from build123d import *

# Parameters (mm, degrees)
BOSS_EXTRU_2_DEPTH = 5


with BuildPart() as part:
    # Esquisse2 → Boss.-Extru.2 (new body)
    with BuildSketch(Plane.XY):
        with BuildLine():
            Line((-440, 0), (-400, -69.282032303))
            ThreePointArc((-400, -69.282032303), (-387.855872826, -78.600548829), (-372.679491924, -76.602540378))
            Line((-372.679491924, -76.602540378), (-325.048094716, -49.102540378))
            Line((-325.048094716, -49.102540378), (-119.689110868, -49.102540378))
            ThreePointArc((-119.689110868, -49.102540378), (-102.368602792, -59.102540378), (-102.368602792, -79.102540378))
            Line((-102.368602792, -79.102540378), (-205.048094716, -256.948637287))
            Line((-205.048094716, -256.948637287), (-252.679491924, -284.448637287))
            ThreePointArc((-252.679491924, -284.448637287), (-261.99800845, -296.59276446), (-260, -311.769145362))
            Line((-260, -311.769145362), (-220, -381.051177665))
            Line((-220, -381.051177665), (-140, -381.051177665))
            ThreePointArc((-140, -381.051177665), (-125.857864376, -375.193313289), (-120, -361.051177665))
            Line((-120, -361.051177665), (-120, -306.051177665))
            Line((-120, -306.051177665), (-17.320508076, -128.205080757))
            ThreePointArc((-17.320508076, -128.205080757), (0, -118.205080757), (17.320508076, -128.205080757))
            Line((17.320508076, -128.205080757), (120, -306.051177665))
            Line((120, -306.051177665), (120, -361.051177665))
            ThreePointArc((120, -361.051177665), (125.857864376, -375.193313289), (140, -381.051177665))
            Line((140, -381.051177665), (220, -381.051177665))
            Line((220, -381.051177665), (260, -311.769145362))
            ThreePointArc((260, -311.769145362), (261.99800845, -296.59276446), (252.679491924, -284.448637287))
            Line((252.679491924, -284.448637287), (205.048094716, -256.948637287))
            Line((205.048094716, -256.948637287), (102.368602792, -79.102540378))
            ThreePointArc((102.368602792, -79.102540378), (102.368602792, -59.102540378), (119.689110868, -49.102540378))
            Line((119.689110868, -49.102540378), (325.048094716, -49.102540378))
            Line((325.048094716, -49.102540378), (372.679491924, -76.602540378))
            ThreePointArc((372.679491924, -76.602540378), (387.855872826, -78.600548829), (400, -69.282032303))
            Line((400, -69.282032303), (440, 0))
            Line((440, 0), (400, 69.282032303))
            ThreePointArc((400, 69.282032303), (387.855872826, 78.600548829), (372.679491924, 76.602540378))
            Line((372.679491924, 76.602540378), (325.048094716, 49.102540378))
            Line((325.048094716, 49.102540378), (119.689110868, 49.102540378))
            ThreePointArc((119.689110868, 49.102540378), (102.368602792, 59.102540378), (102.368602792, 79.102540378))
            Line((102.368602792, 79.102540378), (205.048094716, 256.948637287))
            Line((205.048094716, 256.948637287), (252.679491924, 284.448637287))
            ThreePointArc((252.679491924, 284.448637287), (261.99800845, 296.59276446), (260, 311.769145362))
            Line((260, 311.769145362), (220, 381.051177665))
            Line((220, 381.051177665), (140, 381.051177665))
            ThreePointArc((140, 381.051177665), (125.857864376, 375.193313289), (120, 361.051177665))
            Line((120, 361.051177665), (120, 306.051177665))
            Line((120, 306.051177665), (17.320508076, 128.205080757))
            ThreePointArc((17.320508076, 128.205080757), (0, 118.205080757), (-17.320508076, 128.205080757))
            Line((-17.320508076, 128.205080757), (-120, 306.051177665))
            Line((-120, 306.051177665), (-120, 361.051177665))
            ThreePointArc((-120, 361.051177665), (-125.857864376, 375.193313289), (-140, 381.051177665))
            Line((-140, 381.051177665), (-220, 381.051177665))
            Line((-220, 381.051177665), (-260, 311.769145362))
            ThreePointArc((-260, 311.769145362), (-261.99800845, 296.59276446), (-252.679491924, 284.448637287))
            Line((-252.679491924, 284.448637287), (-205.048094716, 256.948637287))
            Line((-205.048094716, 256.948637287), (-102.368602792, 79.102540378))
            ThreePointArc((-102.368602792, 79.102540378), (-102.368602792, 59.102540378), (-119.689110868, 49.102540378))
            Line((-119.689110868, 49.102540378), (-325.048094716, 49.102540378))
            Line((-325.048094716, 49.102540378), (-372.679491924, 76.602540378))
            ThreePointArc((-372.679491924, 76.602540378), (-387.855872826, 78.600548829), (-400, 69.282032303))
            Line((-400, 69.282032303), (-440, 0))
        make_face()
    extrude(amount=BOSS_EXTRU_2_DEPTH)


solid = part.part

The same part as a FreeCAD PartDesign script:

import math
import FreeCAD as App
import Part
import Sketcher
Q = App.Units.Quantity

doc = App.newDocument("Part")
body = doc.addObject("PartDesign::Body", "Body")

sketch1 = body.newObject("Sketcher::SketchObject", "Sketch")
sketch1.AttachmentSupport = (doc.getObject("XY_Plane"), [""])
sketch1.MapMode = "FlatFace"
sketch1.addGeometry([
    Part.LineSegment(App.Vector(-440, 0, 0), App.Vector(-400, -69, 0)),
    Part.ArcOfCircle(Part.Circle(App.Vector(-383, -59, 0), App.Vector(0, 0, 1), 20), math.radians(-150), math.radians(-60)),
    Part.LineSegment(App.Vector(-373, -77, 0), App.Vector(-325, -49, 0)),
    Part.LineSegment(App.Vector(-325, -49, 0), App.Vector(-120, -49, 0)),
    Part.ArcOfCircle(Part.Circle(App.Vector(-120, -69, 0), App.Vector(0, 0, 1), 20), math.radians(-30), math.radians(90)),
    Part.LineSegment(App.Vector(-102, -79, 0), App.Vector(-205, -257, 0)),
    Part.LineSegment(App.Vector(-205, -257, 0), App.Vector(-253, -284, 0)),
    Part.ArcOfCircle(Part.Circle(App.Vector(-243, -302, 0), App.Vector(0, 0, 1), 20), math.radians(120), math.radians(210)),
    Part.LineSegment(App.Vector(-260, -312, 0), App.Vector(-220, -381, 0)),
    Part.LineSegment(App.Vector(-220, -381, 0), App.Vector(-140, -381, 0)),
    Part.ArcOfCircle(Part.Circle(App.Vector(-140, -361, 0), App.Vector(0, 0, 1), 20), math.radians(-90), math.radians(0)),
    Part.LineSegment(App.Vector(-120, -361, 0), App.Vector(-120, -306, 0)),
    Part.LineSegment(App.Vector(-120, -306, 0), App.Vector(-17, -128, 0)),
    Part.ArcOfCircle(Part.Circle(App.Vector(0, -138, 0), App.Vector(0, 0, 1), 20), math.radians(30), math.radians(150)),
    Part.LineSegment(App.Vector(17, -128, 0), App.Vector(120, -306, 0)),
    Part.LineSegment(App.Vector(120, -306, 0), App.Vector(120, -361, 0)),
    Part.ArcOfCircle(Part.Circle(App.Vector(140, -361, 0), App.Vector(0, 0, 1), 20), math.radians(180), math.radians(270)),
    Part.LineSegment(App.Vector(140, -381, 0), App.Vector(220, -381, 0)),
    Part.LineSegment(App.Vector(220, -381, 0), App.Vector(260, -312, 0)),
    Part.ArcOfCircle(Part.Circle(App.Vector(243, -302, 0), App.Vector(0, 0, 1), 20), math.radians(-30), math.radians(60)),
    Part.LineSegment(App.Vector(253, -284, 0), App.Vector(205, -257, 0)),
    Part.LineSegment(App.Vector(205, -257, 0), App.Vector(102, -79, 0)),
    Part.ArcOfCircle(Part.Circle(App.Vector(120, -69, 0), App.Vector(0, 0, 1), 20), math.radians(90), math.radians(210)),
    Part.LineSegment(App.Vector(120, -49, 0), App.Vector(325, -49, 0)),
    Part.LineSegment(App.Vector(325, -49, 0), App.Vector(373, -77, 0)),
    Part.ArcOfCircle(Part.Circle(App.Vector(383, -59, 0), App.Vector(0, 0, 1), 20), math.radians(-120), math.radians(-30)),
    Part.LineSegment(App.Vector(400, -69, 0), App.Vector(440, 0, 0)),
    Part.LineSegment(App.Vector(440, 0, 0), App.Vector(400, 69, 0)),
    Part.ArcOfCircle(Part.Circle(App.Vector(383, 59, 0), App.Vector(0, 0, 1), 20), math.radians(30), math.radians(120)),
    Part.LineSegment(App.Vector(373, 77, 0), App.Vector(325, 49, 0)),
    Part.LineSegment(App.Vector(325, 49, 0), App.Vector(120, 49, 0)),
    Part.ArcOfCircle(Part.Circle(App.Vector(120, 69, 0), App.Vector(0, 0, 1), 20), math.radians(150), math.radians(270)),
    Part.LineSegment(App.Vector(102, 79, 0), App.Vector(205, 257, 0)),
    Part.LineSegment(App.Vector(205, 257, 0), App.Vector(253, 284, 0)),
    Part.ArcOfCircle(Part.Circle(App.Vector(243, 302, 0), App.Vector(0, 0, 1), 20), math.radians(-60), math.radians(30)),
    Part.LineSegment(App.Vector(260, 312, 0), App.Vector(220, 381, 0)),
    Part.LineSegment(App.Vector(220, 381, 0), App.Vector(140, 381, 0)),
    Part.ArcOfCircle(Part.Circle(App.Vector(140, 361, 0), App.Vector(0, 0, 1), 20), math.radians(90), math.radians(180)),
    Part.LineSegment(App.Vector(120, 361, 0), App.Vector(120, 306, 0)),
    Part.LineSegment(App.Vector(120, 306, 0), App.Vector(17, 128, 0)),
    Part.ArcOfCircle(Part.Circle(App.Vector(0, 138, 0), App.Vector(0, 0, 1), 20), math.radians(-150), math.radians(-30)),
    Part.LineSegment(App.Vector(-17, 128, 0), App.Vector(-120, 306, 0)),
    Part.LineSegment(App.Vector(-120, 306, 0), App.Vector(-120, 361, 0)),
    Part.ArcOfCircle(Part.Circle(App.Vector(-140, 361, 0), App.Vector(0, 0, 1), 20), math.radians(0), math.radians(90)),
    Part.LineSegment(App.Vector(-140, 381, 0), App.Vector(-220, 381, 0)),
    Part.LineSegment(App.Vector(-220, 381, 0), App.Vector(-260, 312, 0)),
    Part.ArcOfCircle(Part.Circle(App.Vector(-243, 302, 0), App.Vector(0, 0, 1), 20), math.radians(150), math.radians(240)),
    Part.LineSegment(App.Vector(-253, 284, 0), App.Vector(-205, 257, 0)),
    Part.LineSegment(App.Vector(-205, 257, 0), App.Vector(-102, 79, 0)),
    Part.ArcOfCircle(Part.Circle(App.Vector(-120, 69, 0), App.Vector(0, 0, 1), 20), math.radians(-90), math.radians(30)),
    Part.LineSegment(App.Vector(-120, 49, 0), App.Vector(-325, 49, 0)),
    Part.LineSegment(App.Vector(-325, 49, 0), App.Vector(-373, 77, 0)),
    Part.ArcOfCircle(Part.Circle(App.Vector(-383, 59, 0), App.Vector(0, 0, 1), 20), math.radians(60), math.radians(150)),
    Part.LineSegment(App.Vector(-400, 69, 0), App.Vector(-440, 0, 0)),
], False)
sketch1.addConstraint([
    Sketcher.Constraint("Tangent", 0, 2, 1, 1),
    Sketcher.Constraint("Tangent", 1, 2, 2, 1),
    Sketcher.Constraint("Coincident", 2, 2, 3, 1),
    Sketcher.Constraint("Tangent", 3, 2, 4, 2),
    Sketcher.Constraint("Tangent", 4, 1, 5, 1),
    Sketcher.Constraint("Coincident", 5, 2, 6, 1),
    Sketcher.Constraint("Tangent", 6, 2, 7, 1),
    Sketcher.Constraint("Tangent", 7, 2, 8, 1),
    Sketcher.Constraint("Coincident", 8, 2, 9, 1),
    Sketcher.Constraint("Tangent", 9, 2, 10, 1),
    Sketcher.Constraint("Tangent", 10, 2, 11, 1),
    Sketcher.Constraint("Coincident", 11, 2, 12, 1),
    Sketcher.Constraint("Tangent", 12, 2, 13, 2),
    Sketcher.Constraint("Tangent", 13, 1, 14, 1),
    Sketcher.Constraint("Coincident", 14, 2, 15, 1),
    Sketcher.Constraint("Tangent", 15, 2, 16, 1),
    Sketcher.Constraint("Tangent", 16, 2, 17, 1),
    Sketcher.Constraint("Coincident", 17, 2, 18, 1),
    Sketcher.Constraint("Tangent", 18, 2, 19, 1),
    Sketcher.Constraint("Tangent", 19, 2, 20, 1),
    Sketcher.Constraint("Coincident", 20, 2, 21, 1),
    Sketcher.Constraint("Tangent", 21, 2, 22, 2),
    Sketcher.Constraint("Tangent", 22, 1, 23, 1),
    Sketcher.Constraint("Coincident", 23, 2, 24, 1),
    Sketcher.Constraint("Tangent", 24, 2, 25, 1),
    Sketcher.Constraint("Tangent", 25, 2, 26, 1),
    Sketcher.Constraint("Coincident", 26, 2, 27, 1),
    Sketcher.Constraint("Tangent", 27, 2, 28, 1),
    Sketcher.Constraint("Tangent", 28, 2, 29, 1),
    Sketcher.Constraint("Coincident", 29, 2, 30, 1),
    Sketcher.Constraint("Tangent", 30, 2, 31, 2),
    Sketcher.Constraint("Tangent", 31, 1, 32, 1),
    Sketcher.Constraint("Coincident", 32, 2, 33, 1),
    Sketcher.Constraint("Tangent", 33, 2, 34, 1),
    Sketcher.Constraint("Tangent", 34, 2, 35, 1),
    Sketcher.Constraint("Coincident", 35, 2, 36, 1),
    Sketcher.Constraint("Tangent", 36, 2, 37, 1),
    Sketcher.Constraint("Tangent", 37, 2, 38, 1),
    Sketcher.Constraint("Coincident", 38, 2, 39, 1),
    Sketcher.Constraint("Tangent", 39, 2, 40, 2),
    Sketcher.Constraint("Tangent", 40, 1, 41, 1),
    Sketcher.Constraint("Coincident", 41, 2, 42, 1),
    Sketcher.Constraint("Tangent", 42, 2, 43, 1),
    Sketcher.Constraint("Tangent", 43, 2, 44, 1),
    Sketcher.Constraint("Coincident", 44, 2, 45, 1),
    Sketcher.Constraint("Tangent", 45, 2, 46, 1),
    Sketcher.Constraint("Tangent", 46, 2, 47, 1),
    Sketcher.Constraint("Coincident", 47, 2, 48, 1),
    Sketcher.Constraint("Tangent", 48, 2, 49, 2),
    Sketcher.Constraint("Tangent", 49, 1, 50, 1),
    Sketcher.Constraint("Coincident", 50, 2, 51, 1),
    Sketcher.Constraint("Tangent", 51, 2, 52, 1),
    Sketcher.Constraint("Tangent", 52, 2, 53, 1),
    Sketcher.Constraint("Coincident", 53, 2, 0, 1),
    Sketcher.Constraint("Horizontal", 3),
    Sketcher.Constraint("Horizontal", 9),
    Sketcher.Constraint("Vertical", 11),
    Sketcher.Constraint("Vertical", 15),
    Sketcher.Constraint("Horizontal", 17),
    Sketcher.Constraint("Horizontal", 23),
    Sketcher.Constraint("Horizontal", 30),
    Sketcher.Constraint("Horizontal", 36),
    Sketcher.Constraint("Vertical", 38),
    Sketcher.Constraint("Vertical", 42),
    Sketcher.Constraint("Horizontal", 44),
    Sketcher.Constraint("Horizontal", 50),
    Sketcher.Constraint("Equal", 1, 4),
    Sketcher.Constraint("Equal", 4, 7),
    Sketcher.Constraint("Equal", 7, 10),
    Sketcher.Constraint("Equal", 10, 13),
    Sketcher.Constraint("Equal", 13, 16),
    Sketcher.Constraint("Equal", 16, 19),
    Sketcher.Constraint("Equal", 19, 22),
    Sketcher.Constraint("Equal", 22, 25),
    Sketcher.Constraint("Equal", 25, 28),
    Sketcher.Constraint("Equal", 28, 31),
    Sketcher.Constraint("Equal", 31, 34),
    Sketcher.Constraint("Equal", 34, 37),
    Sketcher.Constraint("Equal", 37, 40),
    Sketcher.Constraint("Equal", 40, 43),
    Sketcher.Constraint("Equal", 43, 46),
    Sketcher.Constraint("Equal", 46, 49),
    Sketcher.Constraint("Equal", 49, 52),
    Sketcher.Constraint("Symmetric", 1, 3, 28, 3, -1, 1),
    Sketcher.Constraint("Symmetric", 4, 3, 31, 3, -1, 1),
    Sketcher.Constraint("Symmetric", 7, 3, 34, 3, -1, 1),
    Sketcher.Constraint("Symmetric", 10, 3, 37, 3, -1, 1),
    Sketcher.Constraint("Symmetric", 13, 3, 40, 3, -1, 1),
    Sketcher.Constraint("Symmetric", 16, 3, 43, 3, -1, 1),
    Sketcher.Constraint("Symmetric", 19, 3, 46, 3, -1, 1),
    Sketcher.Constraint("Symmetric", 22, 3, 49, 3, -1, 1),
    Sketcher.Constraint("Symmetric", 25, 3, 52, 3, -1, 1),
    Sketcher.Constraint("Symmetric", 5, 2, 32, 2, -1, 1),
    Sketcher.Constraint("Symmetric", 20, 2, 47, 2, -1, 1),
    Sketcher.Constraint("Symmetric", 26, 2, 53, 2, -1, 1),
    Sketcher.Constraint("Symmetric", 10, 3, 16, 3, -2),
    Sketcher.Constraint("Symmetric", 7, 3, 19, 3, -2),
    Sketcher.Constraint("Symmetric", 4, 3, 22, 3, -2),
    Sketcher.Constraint("Symmetric", 1, 3, 25, 3, -2),
    Sketcher.Constraint("Symmetric", 12, 2, 13, 1, -2),
    Sketcher.Constraint("Symmetric", 5, 2, 20, 2, -2),
    Sketcher.Constraint("PointOnObject", 26, 2, -1),
    Sketcher.Constraint("Perpendicular", 0, 2),
    Sketcher.Constraint("Parallel", 2, 6),
    Sketcher.Constraint("Perpendicular", 6, 8),
    Sketcher.Constraint("Parallel", 5, 12),
    Sketcher.Constraint("Parallel", 8, 14),
    Sketcher.Constraint("Parallel", 12, 18),
    Sketcher.Constraint("Parallel", 20, 24),
    Sketcher.Constraint("Perpendicular", 27, 29),
    Sketcher.Constraint("Perpendicular", 33, 35),
    Sketcher.Constraint("Parallel", 32, 39),
    Sketcher.Constraint("Parallel", 35, 41),
    Sketcher.Constraint("Parallel", 39, 45),
    Sketcher.Constraint("Parallel", 47, 51),
    Sketcher.Constraint("Equal", 2, 6),
    Sketcher.Constraint("Equal", 0, 8),
    Sketcher.Constraint("Equal", 5, 12),
    Sketcher.Constraint("Radius", 1, 20.0),
    Sketcher.Constraint("DistanceX", 9, 1, 9, 2, 80.0),
    Sketcher.Constraint("DistanceY", 11, 1, 11, 2, 55.0),
    Sketcher.Constraint("Angle", 0, Q("-60 deg")),
    Sketcher.Constraint("Distance", 0, 80.0),
    Sketcher.Constraint("Distance", 2, 55.0),
    Sketcher.Constraint("DistanceX", 10, 3, -1, 1, 140.0),
    Sketcher.Constraint("DistanceX", 0, 2, -1, 1, 400.0),
])
pad1 = body.newObject("PartDesign::Pad", "Pad")
pad1.Profile = sketch1
pad1.Length = 5

doc.recompute()
